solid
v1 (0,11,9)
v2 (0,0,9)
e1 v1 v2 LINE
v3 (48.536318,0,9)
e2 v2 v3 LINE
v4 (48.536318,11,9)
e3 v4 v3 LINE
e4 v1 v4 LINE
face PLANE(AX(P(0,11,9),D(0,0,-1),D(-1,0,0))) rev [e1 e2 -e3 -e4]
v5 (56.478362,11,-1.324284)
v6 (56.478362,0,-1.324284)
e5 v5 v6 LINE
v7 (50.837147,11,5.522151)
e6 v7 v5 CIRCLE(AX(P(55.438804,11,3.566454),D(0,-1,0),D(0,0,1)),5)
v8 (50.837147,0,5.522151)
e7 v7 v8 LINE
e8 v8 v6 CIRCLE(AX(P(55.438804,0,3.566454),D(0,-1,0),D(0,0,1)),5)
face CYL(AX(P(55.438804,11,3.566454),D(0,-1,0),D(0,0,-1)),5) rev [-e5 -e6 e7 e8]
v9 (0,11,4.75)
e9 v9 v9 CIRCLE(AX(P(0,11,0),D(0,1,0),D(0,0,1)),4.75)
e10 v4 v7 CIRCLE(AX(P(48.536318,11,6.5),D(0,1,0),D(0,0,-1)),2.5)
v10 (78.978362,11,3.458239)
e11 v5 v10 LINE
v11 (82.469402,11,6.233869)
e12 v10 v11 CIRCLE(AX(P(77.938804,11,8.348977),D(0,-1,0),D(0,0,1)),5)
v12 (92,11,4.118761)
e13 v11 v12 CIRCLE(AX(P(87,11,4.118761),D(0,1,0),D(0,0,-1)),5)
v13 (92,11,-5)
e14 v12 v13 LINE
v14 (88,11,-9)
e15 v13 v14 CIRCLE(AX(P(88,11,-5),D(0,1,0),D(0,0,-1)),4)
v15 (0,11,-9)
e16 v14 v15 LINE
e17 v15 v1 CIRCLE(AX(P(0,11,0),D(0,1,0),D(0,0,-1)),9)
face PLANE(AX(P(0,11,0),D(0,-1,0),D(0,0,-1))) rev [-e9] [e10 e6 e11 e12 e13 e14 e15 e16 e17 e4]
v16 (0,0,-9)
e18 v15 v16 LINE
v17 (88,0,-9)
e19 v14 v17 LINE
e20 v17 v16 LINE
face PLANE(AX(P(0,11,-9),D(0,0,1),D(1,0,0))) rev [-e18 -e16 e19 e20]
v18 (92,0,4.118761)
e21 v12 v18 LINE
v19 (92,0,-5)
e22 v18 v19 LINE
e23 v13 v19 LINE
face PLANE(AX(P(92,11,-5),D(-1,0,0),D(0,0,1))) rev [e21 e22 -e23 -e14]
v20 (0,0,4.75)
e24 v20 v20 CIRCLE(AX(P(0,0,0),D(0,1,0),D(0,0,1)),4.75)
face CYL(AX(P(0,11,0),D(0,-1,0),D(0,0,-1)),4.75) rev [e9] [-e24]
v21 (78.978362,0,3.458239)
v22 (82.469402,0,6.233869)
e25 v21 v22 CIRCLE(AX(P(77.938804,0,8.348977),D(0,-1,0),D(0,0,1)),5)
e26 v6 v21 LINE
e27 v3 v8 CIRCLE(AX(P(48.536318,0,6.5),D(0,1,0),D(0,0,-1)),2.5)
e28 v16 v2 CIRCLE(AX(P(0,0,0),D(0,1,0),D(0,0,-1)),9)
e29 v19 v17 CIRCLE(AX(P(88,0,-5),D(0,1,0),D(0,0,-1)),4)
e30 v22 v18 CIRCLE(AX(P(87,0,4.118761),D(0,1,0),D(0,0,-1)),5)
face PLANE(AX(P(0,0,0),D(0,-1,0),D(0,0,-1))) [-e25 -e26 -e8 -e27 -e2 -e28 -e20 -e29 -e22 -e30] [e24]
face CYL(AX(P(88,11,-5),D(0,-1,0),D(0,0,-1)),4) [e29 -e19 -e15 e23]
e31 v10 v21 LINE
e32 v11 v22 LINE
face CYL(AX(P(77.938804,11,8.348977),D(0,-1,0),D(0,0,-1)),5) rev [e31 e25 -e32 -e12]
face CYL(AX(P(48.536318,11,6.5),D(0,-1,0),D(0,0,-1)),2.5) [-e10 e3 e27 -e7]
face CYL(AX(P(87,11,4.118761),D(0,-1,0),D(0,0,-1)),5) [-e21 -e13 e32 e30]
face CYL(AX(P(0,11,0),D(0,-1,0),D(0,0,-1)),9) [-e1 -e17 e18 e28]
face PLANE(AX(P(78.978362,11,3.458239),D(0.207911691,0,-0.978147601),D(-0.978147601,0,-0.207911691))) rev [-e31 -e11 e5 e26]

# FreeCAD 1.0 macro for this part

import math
import FreeCAD as App
import Part
import Sketcher
Q = App.Units.Quantity

doc = App.newDocument("Part")
body = doc.addObject("PartDesign::Body", "Body")

# Sketch on XZ plane
sketch1 = body.newObject("Sketcher::SketchObject", "Sketch")
sketch1.AttachmentSupport = (doc.getObject("XZ_Plane"), [""])
sketch1.MapMode = "FlatFace"
sketch1.addGeometry([
    Part.LineSegment(App.Vector(88, -9, 0), App.Vector(0, -9, 0)),  # 0
    Part.ArcOfCircle(Part.Circle(App.Vector(0, 0, 0), App.Vector(0, 0, 1), 9), math.radians(90), math.radians(270)),  # 1
    Part.LineSegment(App.Vector(0, 9, 0), App.Vector(48.536318, 9, 0)),  # 2
    Part.ArcOfCircle(Part.Circle(App.Vector(48.536318, 6.5, 0), App.Vector(0, 0, 1), 2.5), math.radians(-23.025417), math.radians(90)),  # 3
    Part.ArcOfCircle(Part.Circle(App.Vector(55.438804, 3.566454, 0), App.Vector(0, 0, 1), 5), math.radians(156.974583), math.radians(282)),  # 4
    Part.LineSegment(App.Vector(56.478362, -1.324284, 0), App.Vector(78.978362, 3.458239, 0)),  # 5
    Part.ArcOfCircle(Part.Circle(App.Vector(77.938804, 8.348977, 0), App.Vector(0, 0, 1), 5), math.radians(-78), math.radians(-25.025501)),  # 6
    Part.ArcOfCircle(Part.Circle(App.Vector(87, 4.118761, 0), App.Vector(0, 0, 1), 5), math.radians(0), math.radians(154.974499)),  # 7
    Part.LineSegment(App.Vector(92, 4.118761, 0), App.Vector(92, -5, 0)),  # 8
    Part.ArcOfCircle(Part.Circle(App.Vector(88, -5, 0), App.Vector(0, 0, 1), 4), math.radians(-90), math.radians(0)),  # 9
    Part.Circle(App.Vector(0, 0, 0), App.Vector(0, 0, 1), 4.75),  # 10
], False)
sketch1.addConstraint([
    Sketcher.Constraint("Tangent", 0, 2, 1, 2),
    Sketcher.Constraint("Tangent", 1, 1, 2, 1),
    Sketcher.Constraint("Tangent", 2, 2, 3, 2),
    Sketcher.Constraint("Tangent", 3, 1, 4, 1),
    Sketcher.Constraint("Tangent", 4, 2, 5, 1),
    Sketcher.Constraint("Tangent", 5, 2, 6, 1),
    Sketcher.Constraint("Tangent", 6, 2, 7, 2),
    Sketcher.Constraint("Tangent", 7, 1, 8, 1),
    Sketcher.Constraint("Tangent", 8, 2, 9, 2),
    Sketcher.Constraint("Tangent", 9, 1, 0, 1),
    Sketcher.Constraint("Horizontal", 0),
    Sketcher.Constraint("Horizontal", 2),
    Sketcher.Constraint("Vertical", 8),
    Sketcher.Constraint("Coincident", 1, 3, -1, 1),
    Sketcher.Constraint("Coincident", 10, 3, -1, 1),
    Sketcher.Constraint("Equal", 4, 6),
    Sketcher.Constraint("Equal", 6, 7),
    Sketcher.Constraint("Radius", 1, Q("9 mm")),
    Sketcher.Constraint("Radius", 4, Q("5 mm")),
    Sketcher.Constraint("Radius", 9, Q("4 mm")),
    Sketcher.Constraint("Diameter", 10, Q("9.5 mm")),
    Sketcher.Constraint("Radius", 3, Q("2.5 mm")),
    Sketcher.Constraint("DistanceX", 0, 2, 0, 1, Q("88 mm")),
    Sketcher.Constraint("Angle", 5, Q("12 deg")),
    Sketcher.Constraint("DistanceX", 4, 3, 6, 3, Q("22.5 mm")),
    Sketcher.Constraint("DistanceX", 2, 1, 2, 2, Q("48.536318 mm")),
    Sketcher.Constraint("DistanceY", 8, 2, 8, 1, Q("9.118761 mm")),
])
pad1 = body.newObject("PartDesign::Pad", "Pad")
pad1.Profile = sketch1
pad1.Length = 11
pad1.Reversed = True

doc.recompute()
